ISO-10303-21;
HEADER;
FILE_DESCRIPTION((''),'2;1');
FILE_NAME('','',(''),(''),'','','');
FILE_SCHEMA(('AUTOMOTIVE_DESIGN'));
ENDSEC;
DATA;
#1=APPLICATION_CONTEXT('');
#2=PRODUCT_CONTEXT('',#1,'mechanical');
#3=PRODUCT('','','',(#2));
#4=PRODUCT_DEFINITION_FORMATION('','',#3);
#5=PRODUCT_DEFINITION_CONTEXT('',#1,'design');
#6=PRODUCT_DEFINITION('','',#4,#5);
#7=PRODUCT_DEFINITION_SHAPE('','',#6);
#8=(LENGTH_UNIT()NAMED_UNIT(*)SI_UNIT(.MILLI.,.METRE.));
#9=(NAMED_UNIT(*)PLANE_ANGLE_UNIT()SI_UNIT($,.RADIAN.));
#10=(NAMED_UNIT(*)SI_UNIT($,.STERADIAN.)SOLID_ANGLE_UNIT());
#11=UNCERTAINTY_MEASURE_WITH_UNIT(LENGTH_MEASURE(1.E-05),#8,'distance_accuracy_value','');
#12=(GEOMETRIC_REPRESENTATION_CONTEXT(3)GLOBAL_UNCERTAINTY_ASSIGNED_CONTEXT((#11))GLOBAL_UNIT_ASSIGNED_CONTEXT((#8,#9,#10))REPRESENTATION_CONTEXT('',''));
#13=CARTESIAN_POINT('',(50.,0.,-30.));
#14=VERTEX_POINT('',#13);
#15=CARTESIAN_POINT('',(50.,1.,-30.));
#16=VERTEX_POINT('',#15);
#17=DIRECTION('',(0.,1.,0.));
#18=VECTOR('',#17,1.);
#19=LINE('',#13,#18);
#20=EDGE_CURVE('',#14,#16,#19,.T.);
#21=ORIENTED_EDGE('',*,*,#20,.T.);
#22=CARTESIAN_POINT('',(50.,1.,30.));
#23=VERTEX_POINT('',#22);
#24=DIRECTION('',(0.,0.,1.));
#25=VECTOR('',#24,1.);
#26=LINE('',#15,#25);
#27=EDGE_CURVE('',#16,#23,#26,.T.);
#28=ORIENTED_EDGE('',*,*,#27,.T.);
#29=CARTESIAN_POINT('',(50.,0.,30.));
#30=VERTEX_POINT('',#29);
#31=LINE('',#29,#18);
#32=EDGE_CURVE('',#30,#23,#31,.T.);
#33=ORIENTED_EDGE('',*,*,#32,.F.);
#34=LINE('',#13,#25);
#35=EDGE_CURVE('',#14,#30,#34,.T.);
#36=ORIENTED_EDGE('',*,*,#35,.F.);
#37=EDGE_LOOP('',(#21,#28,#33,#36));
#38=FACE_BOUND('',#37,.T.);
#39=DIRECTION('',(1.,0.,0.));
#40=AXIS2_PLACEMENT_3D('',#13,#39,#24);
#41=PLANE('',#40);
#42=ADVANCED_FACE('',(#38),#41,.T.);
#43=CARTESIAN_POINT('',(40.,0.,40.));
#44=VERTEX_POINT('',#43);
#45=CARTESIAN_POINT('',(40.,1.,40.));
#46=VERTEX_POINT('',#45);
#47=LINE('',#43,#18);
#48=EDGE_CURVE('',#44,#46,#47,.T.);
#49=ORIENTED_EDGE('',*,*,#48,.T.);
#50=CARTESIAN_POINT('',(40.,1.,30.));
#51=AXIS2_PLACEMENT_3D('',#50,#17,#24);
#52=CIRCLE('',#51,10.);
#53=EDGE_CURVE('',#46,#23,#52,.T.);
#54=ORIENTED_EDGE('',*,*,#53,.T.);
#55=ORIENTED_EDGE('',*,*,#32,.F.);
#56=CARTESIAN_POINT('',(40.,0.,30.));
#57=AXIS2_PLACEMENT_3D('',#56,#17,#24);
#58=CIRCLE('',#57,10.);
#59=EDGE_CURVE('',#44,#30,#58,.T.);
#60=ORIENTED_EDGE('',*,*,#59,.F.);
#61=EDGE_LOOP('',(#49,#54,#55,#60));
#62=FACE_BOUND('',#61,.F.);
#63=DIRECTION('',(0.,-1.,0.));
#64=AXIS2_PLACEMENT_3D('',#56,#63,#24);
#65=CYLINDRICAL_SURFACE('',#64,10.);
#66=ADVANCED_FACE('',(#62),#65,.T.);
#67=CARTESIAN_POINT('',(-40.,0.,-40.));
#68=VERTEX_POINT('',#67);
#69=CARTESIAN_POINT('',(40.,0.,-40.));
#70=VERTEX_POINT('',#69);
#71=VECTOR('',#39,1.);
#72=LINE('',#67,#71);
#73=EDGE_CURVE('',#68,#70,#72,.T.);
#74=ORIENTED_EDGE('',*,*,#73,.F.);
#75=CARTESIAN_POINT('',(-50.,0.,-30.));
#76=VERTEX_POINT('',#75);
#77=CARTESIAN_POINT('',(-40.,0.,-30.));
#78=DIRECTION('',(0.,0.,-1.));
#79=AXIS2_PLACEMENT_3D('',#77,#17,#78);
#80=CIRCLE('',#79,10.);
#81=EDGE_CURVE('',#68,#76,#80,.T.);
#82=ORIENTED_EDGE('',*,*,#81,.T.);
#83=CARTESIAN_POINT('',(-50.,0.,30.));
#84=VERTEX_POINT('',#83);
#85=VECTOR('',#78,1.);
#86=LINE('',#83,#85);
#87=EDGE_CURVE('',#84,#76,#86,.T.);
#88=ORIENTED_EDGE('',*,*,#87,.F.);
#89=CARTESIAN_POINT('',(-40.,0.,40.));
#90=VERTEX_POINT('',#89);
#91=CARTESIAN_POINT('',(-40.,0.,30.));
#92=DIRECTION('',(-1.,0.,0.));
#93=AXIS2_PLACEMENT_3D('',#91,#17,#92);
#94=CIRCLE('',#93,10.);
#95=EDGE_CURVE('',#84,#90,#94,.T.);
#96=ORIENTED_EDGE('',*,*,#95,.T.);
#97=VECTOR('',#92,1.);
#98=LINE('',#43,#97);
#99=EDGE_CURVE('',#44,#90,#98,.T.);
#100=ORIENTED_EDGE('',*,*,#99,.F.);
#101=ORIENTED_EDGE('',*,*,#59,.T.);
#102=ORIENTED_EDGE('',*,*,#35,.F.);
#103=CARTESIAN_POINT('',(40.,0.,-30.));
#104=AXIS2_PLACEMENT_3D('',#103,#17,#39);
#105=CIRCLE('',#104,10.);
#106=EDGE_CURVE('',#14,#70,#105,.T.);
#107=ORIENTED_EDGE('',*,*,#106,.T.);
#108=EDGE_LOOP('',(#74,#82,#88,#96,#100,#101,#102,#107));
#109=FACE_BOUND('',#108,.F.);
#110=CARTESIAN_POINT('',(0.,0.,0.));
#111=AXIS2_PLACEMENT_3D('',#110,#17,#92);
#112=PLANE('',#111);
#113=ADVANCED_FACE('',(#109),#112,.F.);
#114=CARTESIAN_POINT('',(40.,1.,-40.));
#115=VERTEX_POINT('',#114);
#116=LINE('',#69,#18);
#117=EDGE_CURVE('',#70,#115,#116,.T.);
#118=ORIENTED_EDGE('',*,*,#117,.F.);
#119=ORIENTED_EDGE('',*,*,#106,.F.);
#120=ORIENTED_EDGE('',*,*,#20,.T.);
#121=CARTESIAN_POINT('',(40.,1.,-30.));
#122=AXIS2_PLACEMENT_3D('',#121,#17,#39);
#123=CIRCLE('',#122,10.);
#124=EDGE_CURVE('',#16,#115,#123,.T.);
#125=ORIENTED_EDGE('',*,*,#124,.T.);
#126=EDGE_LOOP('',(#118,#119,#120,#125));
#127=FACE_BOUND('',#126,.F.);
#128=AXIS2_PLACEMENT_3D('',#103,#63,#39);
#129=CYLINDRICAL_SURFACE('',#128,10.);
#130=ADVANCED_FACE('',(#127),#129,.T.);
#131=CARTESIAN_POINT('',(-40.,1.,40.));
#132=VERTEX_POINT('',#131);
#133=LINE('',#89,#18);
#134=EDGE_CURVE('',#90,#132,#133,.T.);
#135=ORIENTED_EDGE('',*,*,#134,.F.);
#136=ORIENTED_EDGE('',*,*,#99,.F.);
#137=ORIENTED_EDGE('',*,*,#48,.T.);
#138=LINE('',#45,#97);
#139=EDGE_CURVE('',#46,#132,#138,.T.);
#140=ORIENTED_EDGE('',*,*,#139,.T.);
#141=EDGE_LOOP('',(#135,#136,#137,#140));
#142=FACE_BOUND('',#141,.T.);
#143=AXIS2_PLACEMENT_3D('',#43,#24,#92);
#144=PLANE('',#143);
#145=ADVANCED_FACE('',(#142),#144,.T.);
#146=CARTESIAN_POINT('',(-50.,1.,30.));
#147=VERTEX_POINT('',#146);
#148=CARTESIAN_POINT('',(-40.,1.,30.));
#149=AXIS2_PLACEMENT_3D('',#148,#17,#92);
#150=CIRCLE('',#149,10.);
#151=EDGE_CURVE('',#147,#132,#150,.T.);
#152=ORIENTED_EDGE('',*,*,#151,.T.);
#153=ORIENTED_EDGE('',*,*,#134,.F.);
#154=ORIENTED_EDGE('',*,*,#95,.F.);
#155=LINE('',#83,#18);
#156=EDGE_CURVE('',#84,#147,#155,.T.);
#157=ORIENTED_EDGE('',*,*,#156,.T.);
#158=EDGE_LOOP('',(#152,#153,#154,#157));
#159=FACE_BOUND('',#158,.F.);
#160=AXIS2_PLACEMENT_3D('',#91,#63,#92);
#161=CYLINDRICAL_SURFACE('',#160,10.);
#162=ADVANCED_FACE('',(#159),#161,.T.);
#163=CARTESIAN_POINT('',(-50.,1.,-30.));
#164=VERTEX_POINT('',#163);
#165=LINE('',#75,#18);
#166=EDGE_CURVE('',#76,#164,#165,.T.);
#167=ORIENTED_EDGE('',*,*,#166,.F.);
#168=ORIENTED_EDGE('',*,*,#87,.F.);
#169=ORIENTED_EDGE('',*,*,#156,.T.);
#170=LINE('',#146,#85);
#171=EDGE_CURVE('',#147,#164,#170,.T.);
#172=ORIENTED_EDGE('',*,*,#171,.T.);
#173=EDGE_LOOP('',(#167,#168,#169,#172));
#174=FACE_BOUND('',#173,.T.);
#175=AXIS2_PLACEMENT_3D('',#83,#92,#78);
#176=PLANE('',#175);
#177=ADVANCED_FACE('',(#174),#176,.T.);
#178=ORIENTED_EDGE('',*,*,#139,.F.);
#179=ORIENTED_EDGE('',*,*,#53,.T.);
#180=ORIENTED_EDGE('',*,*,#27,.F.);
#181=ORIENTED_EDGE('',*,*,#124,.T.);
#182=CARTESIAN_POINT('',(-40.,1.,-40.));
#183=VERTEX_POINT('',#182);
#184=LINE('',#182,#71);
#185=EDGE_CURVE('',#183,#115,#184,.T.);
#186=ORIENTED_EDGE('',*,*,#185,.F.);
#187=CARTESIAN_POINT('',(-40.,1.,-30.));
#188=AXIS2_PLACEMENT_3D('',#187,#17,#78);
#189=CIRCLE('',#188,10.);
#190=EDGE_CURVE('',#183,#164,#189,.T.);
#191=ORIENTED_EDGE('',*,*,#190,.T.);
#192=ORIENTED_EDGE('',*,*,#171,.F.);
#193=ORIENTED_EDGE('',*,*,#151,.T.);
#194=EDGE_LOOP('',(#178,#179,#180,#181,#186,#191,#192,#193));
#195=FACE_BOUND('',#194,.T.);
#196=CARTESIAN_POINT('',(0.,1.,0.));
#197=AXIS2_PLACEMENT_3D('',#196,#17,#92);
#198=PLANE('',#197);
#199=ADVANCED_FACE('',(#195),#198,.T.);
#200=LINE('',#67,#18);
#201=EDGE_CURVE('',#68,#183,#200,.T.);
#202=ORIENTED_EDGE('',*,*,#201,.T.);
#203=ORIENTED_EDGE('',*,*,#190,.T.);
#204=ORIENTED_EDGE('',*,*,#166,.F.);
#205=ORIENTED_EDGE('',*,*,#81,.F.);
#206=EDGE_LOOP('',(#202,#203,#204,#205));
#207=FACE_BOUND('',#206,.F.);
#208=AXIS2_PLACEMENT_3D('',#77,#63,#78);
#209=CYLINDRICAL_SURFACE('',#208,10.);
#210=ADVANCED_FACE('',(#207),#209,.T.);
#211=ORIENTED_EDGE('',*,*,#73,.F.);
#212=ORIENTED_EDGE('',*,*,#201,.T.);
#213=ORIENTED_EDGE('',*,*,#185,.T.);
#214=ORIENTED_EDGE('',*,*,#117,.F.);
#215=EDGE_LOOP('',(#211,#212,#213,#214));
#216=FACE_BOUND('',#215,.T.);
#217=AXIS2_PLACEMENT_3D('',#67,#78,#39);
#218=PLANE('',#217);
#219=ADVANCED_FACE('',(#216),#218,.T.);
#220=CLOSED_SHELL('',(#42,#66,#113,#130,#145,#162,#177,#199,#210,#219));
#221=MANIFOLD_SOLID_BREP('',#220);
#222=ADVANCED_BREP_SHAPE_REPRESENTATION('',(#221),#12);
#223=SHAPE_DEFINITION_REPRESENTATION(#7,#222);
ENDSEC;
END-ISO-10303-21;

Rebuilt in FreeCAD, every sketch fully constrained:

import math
import FreeCAD as App
import Part
import Sketcher
Q = App.Units.Quantity

doc = App.newDocument("Part")
body = doc.addObject("PartDesign::Body", "Body")

# Sketch on XZ plane
sketch1 = body.newObject("Sketcher::SketchObject", "Sketch")
sketch1.AttachmentSupport = (doc.getObject("XZ_Plane"), [""])
sketch1.MapMode = "FlatFace"
sketch1.addGeometry(Part.LineSegment(App.Vector(-40, 40, 0), App.Vector(40, 40, 0)), False)
sketch1.addGeometry(Part.ArcOfCircle(Part.Circle(App.Vector(40, 30, 0), App.Vector(0, 0, 1), 10), math.radians(0), math.radians(90)), False)
sketch1.addGeometry(Part.LineSegment(App.Vector(50, 30, 0), App.Vector(50, -30, 0)), False)
sketch1.addGeometry(Part.ArcOfCircle(Part.Circle(App.Vector(40, -30, 0), App.Vector(0, 0, 1), 10), math.radians(-90), math.radians(0)), False)
sketch1.addGeometry(Part.LineSegment(App.Vector(40, -40, 0), App.Vector(-40, -40, 0)), False)
sketch1.addGeometry(Part.ArcOfCircle(Part.Circle(App.Vector(-40, -30, 0), App.Vector(0, 0, 1), 10), math.radians(180), math.radians(270)), False)
sketch1.addGeometry(Part.LineSegment(App.Vector(-50, -30, 0), App.Vector(-50, 30, 0)), False)
sketch1.addGeometry(Part.ArcOfCircle(Part.Circle(App.Vector(-40, 30, 0), App.Vector(0, 0, 1), 10), math.radians(90), math.radians(180)), False)
sketch1.addConstraint(Sketcher.Constraint("Tangent", 0, 2, 1, 2))
sketch1.addConstraint(Sketcher.Constraint("Tangent", 1, 1, 2, 1))
sketch1.addConstraint(Sketcher.Constraint("Tangent", 2, 2, 3, 2))
sketch1.addConstraint(Sketcher.Constraint("Tangent", 3, 1, 4, 1))
sketch1.addConstraint(Sketcher.Constraint("Tangent", 4, 2, 5, 2))
sketch1.addConstraint(Sketcher.Constraint("Tangent", 5, 1, 6, 1))
sketch1.addConstraint(Sketcher.Constraint("Tangent", 6, 2, 7, 2))
sketch1.addConstraint(Sketcher.Constraint("Tangent", 7, 1, 0, 1))
sketch1.addConstraint(Sketcher.Constraint("Horizontal", 0))
sketch1.addConstraint(Sketcher.Constraint("Vertical", 2))
sketch1.addConstraint(Sketcher.Constraint("Horizontal", 4))
sketch1.addConstraint(Sketcher.Constraint("Vertical", 6))
sketch1.addConstraint(Sketcher.Constraint("Equal", 1, 3))
sketch1.addConstraint(Sketcher.Constraint("Equal", 3, 5))
sketch1.addConstraint(Sketcher.Constraint("Equal", 5, 7))
sketch1.addConstraint(Sketcher.Constraint("Symmetric", 1, 3, 5, 3, -1, 1))
sketch1.addConstraint(Sketcher.Constraint("Radius", 1, Q("10 mm")))
sketch1.addConstraint(Sketcher.Constraint("DistanceX", 0, 1, 0, 2, Q("80 mm")))
sketch1.addConstraint(Sketcher.Constraint("DistanceY", 3, 1, 0, 2, Q("80 mm")))
pad1 = body.newObject("PartDesign::Pad", "Pad")
pad1.Profile = sketch1
pad1.Length = 1
pad1.Reversed = True

doc.recompute()
